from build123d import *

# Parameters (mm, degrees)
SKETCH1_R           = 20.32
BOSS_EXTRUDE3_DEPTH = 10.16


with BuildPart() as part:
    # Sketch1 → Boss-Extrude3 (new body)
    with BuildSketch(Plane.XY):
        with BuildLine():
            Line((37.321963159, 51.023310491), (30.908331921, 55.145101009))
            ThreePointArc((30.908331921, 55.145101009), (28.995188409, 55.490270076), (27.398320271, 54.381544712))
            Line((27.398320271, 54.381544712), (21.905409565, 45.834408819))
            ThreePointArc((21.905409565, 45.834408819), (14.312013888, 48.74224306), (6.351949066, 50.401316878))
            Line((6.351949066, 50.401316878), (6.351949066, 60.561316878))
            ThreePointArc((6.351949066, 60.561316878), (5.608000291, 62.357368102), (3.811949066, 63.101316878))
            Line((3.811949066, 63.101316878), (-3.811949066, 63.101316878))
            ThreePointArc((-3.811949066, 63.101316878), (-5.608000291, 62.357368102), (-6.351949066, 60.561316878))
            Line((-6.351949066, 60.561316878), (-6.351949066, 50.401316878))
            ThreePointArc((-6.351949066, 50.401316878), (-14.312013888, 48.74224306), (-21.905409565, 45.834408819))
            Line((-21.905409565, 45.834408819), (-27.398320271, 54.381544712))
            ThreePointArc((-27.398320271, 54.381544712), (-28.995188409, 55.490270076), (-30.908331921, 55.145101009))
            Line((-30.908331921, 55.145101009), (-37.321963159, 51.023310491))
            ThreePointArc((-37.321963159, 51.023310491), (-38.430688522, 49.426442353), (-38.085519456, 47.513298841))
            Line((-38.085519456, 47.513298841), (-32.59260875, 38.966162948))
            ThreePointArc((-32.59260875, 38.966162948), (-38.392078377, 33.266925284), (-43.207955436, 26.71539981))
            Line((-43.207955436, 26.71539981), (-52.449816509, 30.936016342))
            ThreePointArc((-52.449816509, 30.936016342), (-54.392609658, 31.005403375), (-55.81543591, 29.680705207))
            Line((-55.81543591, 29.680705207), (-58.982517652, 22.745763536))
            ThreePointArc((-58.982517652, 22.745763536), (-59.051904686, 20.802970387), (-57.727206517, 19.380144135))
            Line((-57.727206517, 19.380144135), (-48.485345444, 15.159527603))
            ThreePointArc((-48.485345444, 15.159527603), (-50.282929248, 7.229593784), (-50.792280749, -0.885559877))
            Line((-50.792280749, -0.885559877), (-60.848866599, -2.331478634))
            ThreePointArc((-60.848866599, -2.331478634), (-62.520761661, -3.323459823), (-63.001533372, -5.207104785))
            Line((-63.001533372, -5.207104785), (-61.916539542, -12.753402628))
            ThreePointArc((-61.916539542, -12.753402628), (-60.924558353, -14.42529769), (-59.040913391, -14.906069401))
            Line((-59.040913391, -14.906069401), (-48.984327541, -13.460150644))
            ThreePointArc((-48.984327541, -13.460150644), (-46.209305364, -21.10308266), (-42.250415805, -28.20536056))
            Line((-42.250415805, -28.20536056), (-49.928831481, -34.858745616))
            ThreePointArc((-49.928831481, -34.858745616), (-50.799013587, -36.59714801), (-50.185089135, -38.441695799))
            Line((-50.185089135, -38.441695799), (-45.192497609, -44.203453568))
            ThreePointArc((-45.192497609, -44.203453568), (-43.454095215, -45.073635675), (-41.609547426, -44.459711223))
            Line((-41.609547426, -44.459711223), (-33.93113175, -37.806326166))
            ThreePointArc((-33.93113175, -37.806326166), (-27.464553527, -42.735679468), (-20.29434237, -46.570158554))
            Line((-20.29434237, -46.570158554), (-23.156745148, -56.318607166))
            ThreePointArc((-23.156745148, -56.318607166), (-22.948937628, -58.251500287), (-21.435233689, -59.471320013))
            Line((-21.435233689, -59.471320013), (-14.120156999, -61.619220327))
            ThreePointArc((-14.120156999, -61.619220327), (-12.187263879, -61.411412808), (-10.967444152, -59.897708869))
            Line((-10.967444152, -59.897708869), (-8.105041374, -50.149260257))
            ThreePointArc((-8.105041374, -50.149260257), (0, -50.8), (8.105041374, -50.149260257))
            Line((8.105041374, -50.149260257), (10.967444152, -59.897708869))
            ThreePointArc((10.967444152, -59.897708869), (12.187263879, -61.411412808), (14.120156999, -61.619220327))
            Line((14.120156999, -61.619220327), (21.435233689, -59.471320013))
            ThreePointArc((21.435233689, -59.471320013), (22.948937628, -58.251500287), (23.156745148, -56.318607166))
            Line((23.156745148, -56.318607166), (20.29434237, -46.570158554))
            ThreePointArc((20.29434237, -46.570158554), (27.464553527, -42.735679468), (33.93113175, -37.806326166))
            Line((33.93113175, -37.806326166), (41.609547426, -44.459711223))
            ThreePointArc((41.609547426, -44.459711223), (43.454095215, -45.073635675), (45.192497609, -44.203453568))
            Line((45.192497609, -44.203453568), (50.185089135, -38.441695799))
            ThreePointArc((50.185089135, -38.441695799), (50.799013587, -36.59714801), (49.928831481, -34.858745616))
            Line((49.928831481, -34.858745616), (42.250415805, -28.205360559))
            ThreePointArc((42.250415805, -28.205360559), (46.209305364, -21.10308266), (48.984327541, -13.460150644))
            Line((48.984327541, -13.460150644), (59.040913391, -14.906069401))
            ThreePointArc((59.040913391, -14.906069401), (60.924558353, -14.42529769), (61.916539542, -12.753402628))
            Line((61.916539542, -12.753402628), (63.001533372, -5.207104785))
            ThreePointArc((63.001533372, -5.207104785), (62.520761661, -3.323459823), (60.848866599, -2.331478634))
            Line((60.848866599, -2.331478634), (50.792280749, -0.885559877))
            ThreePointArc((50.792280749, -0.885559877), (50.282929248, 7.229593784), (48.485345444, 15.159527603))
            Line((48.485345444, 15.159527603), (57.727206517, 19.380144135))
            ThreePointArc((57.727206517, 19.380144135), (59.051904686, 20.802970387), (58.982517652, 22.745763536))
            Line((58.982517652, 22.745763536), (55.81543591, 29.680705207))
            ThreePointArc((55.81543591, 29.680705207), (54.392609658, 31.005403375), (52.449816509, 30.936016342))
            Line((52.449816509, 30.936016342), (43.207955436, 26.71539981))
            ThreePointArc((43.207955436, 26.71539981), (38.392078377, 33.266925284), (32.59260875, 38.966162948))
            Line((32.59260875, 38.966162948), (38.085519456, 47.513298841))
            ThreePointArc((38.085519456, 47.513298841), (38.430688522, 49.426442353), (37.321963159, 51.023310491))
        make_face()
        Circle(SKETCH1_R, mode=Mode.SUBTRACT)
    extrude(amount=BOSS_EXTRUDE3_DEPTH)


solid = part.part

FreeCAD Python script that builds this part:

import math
import FreeCAD as App
import Part
import Sketcher

V = App.Vector
Q = App.Units.Quantity

doc = App.newDocument("Part")
params = doc.addObject("Spreadsheet::Sheet", "Params")
for row, (alias, value) in enumerate([
    ("sketch1_radius", "2 in"),
    ("sketch1_diameter", "1.6 in"),
    ("sketch1_radius2", "0.1 in"),
    ("sketch1_height", "0.4 in"),
    ("sketch1_length", "0.4 in"),
    ("pad1_length", "0.4 in"),
], start=1):
    params.set(f"A{row}", alias)
    params.set(f"B{row}", "=" + value)
    params.setAlias(f"B{row}", alias)

body = doc.addObject("PartDesign::Body", "Body")

sketch1 = doc.addObject("Sketcher::SketchObject", "Sketch")
body.addObject(sketch1)
sketch1.AttachmentSupport = (doc.XY_Plane, [""])
sketch1.MapMode = "FlatFace"
sketch1.addGeometry(Part.LineSegment(V(37.3, 51, 0), V(30.9, 55.1, 0)), False)
sketch1.addGeometry(Part.ArcOfCircle(Part.Circle(V(29.5, 53, 0), V(0, 0, 1), 2.5), math.radians(57), math.radians(147)), False)
sketch1.addGeometry(Part.LineSegment(V(27.4, 54.4, 0), V(21.9, 45.8, 0)), False)
sketch1.addGeometry(Part.ArcOfCircle(Part.Circle(V(0, 0, 0), V(0, 0, 1), 50.8), math.radians(64.46), math.radians(82.82)), False)
sketch1.addGeometry(Part.LineSegment(V(6.4, 50.4, 0), V(6.4, 60.6, 0)), False)
sketch1.addGeometry(Part.ArcOfCircle(Part.Circle(V(3.8, 60.6, 0), V(0, 0, 1), 2.5), math.radians(0), math.radians(90)), False)
sketch1.addGeometry(Part.LineSegment(V(3.8, 63.1, 0), V(-3.8, 63.1, 0)), False)
sketch1.addGeometry(Part.ArcOfCircle(Part.Circle(V(-3.8, 60.6, 0), V(0, 0, 1), 2.5), math.radians(90), math.radians(180)), False)
sketch1.addGeometry(Part.LineSegment(V(-6.4, 60.6, 0), V(-6.4, 50.4, 0)), False)
sketch1.addGeometry(Part.ArcOfCircle(Part.Circle(V(0, 0, 0), V(0, 0, 1), 50.8), math.radians(97.18), math.radians(115.54)), False)
sketch1.addGeometry(Part.LineSegment(V(-21.9, 45.8, 0), V(-27.4, 54.4, 0)), False)
sketch1.addGeometry(Part.ArcOfCircle(Part.Circle(V(-29.5, 53, 0), V(0, 0, 1), 2.5), math.radians(33), math.radians(123)), False)
sketch1.addGeometry(Part.LineSegment(V(-30.9, 55.1, 0), V(-37.3, 51, 0)), False)
sketch1.addGeometry(Part.ArcOfCircle(Part.Circle(V(-35.9, 48.9, 0), V(0, 0, 1), 2.5), math.radians(123), math.radians(213)), False)
sketch1.addGeometry(Part.LineSegment(V(-38.1, 47.5, 0), V(-32.6, 39, 0)), False)
sketch1.addGeometry(Part.ArcOfCircle(Part.Circle(V(0, 0, 0), V(0, 0, 1), 50.8), math.radians(129.91), math.radians(148.27)), False)
sketch1.addGeometry(Part.LineSegment(V(-43.2, 26.7, 0), V(-52.4, 30.9, 0)), False)
sketch1.addGeometry(Part.ArcOfCircle(Part.Circle(V(-53.5, 28.6, 0), V(0, 0, 1), 2.5), math.radians(65), math.radians(155)), False)
sketch1.addGeometry(Part.LineSegment(V(-55.8, 29.7, 0), V(-59, 22.7, 0)), False)
sketch1.addGeometry(Part.ArcOfCircle(Part.Circle(V(-56.7, 21.7, 0), V(0, 0, 1), 2.5), math.radians(155), math.radians(245)), False)
sketch1.addGeometry(Part.LineSegment(V(-57.7, 19.4, 0), V(-48.5, 15.2, 0)), False)
sketch1.addGeometry(Part.ArcOfCircle(Part.Circle(V(0, 0, 0), V(0, 0, 1), 50.8), math.radians(162.64), math.radians(181)), False)
sketch1.addGeometry(Part.LineSegment(V(-50.8, -0.9, 0), V(-60.8, -2.3, 0)), False)
sketch1.addGeometry(Part.ArcOfCircle(Part.Circle(V(-60.5, -4.8, 0), V(0, 0, 1), 2.5), math.radians(98), math.radians(188)), False)
sketch1.addGeometry(Part.LineSegment(V(-63, -5.2, 0), V(-61.9, -12.8, 0)), False)
sketch1.addGeometry(Part.ArcOfCircle(Part.Circle(V(-59.4, -12.4, 0), V(0, 0, 1), 2.5), math.radians(-172), math.radians(-82)), False)
sketch1.addGeometry(Part.LineSegment(V(-59, -14.9, 0), V(-49, -13.5, 0)), False)
sketch1.addGeometry(Part.ArcOfCircle(Part.Circle(V(0, 0, 0), V(0, 0, 1), 50.8), math.radians(-164.64), math.radians(-146.27)), False)
sketch1.addGeometry(Part.LineSegment(V(-42.3, -28.2, 0), V(-49.9, -34.9, 0)), False)
sketch1.addGeometry(Part.ArcOfCircle(Part.Circle(V(-48.3, -36.8, 0), V(0, 0, 1), 2.5), math.radians(131), math.radians(221)), False)
sketch1.addGeometry(Part.LineSegment(V(-50.2, -38.4, 0), V(-45.2, -44.2, 0)), False)
sketch1.addGeometry(Part.ArcOfCircle(Part.Circle(V(-43.3, -42.5, 0), V(0, 0, 1), 2.5), math.radians(-139), math.radians(-49)), False)
sketch1.addGeometry(Part.LineSegment(V(-41.6, -44.5, 0), V(-33.9, -37.8, 0)), False)
sketch1.addGeometry(Part.ArcOfCircle(Part.Circle(V(0, 0, 0), V(0, 0, 1), 50.8), math.radians(-131.91), math.radians(-113.55)), False)
sketch1.addGeometry(Part.LineSegment(V(-20.3, -46.6, 0), V(-23.2, -56.3, 0)), False)
sketch1.addGeometry(Part.ArcOfCircle(Part.Circle(V(-20.7, -57, 0), V(0, 0, 1), 2.5), math.radians(164), math.radians(254)), False)
sketch1.addGeometry(Part.LineSegment(V(-21.4, -59.5, 0), V(-14.1, -61.6, 0)), False)
sketch1.addGeometry(Part.ArcOfCircle(Part.Circle(V(-13.4, -59.2, 0), V(0, 0, 1), 2.5), math.radians(-106), math.radians(-16)), False)
sketch1.addGeometry(Part.LineSegment(V(-11, -59.9, 0), V(-8.1, -50.1, 0)), False)
sketch1.addGeometry(Part.ArcOfCircle(Part.Circle(V(0, 0, 0), V(0, 0, 1), 50.8), math.radians(-99.18), math.radians(-80.82)), False)
sketch1.addGeometry(Part.LineSegment(V(8.1, -50.1, 0), V(11, -59.9, 0)), False)
sketch1.addGeometry(Part.ArcOfCircle(Part.Circle(V(13.4, -59.2, 0), V(0, 0, 1), 2.5), math.radians(-164), math.radians(-74)), False)
sketch1.addGeometry(Part.LineSegment(V(14.1, -61.6, 0), V(21.4, -59.5, 0)), False)
sketch1.addGeometry(Part.ArcOfCircle(Part.Circle(V(20.7, -57, 0), V(0, 0, 1), 2.5), math.radians(-74), math.radians(16)), False)
sketch1.addGeometry(Part.LineSegment(V(23.2, -56.3, 0), V(20.3, -46.6, 0)), False)
sketch1.addGeometry(Part.ArcOfCircle(Part.Circle(V(0, 0, 0), V(0, 0, 1), 50.8), math.radians(-66.45), math.radians(-48.09)), False)
sketch1.addGeometry(Part.LineSegment(V(33.9, -37.8, 0), V(41.6, -44.5, 0)), False)
sketch1.addGeometry(Part.ArcOfCircle(Part.Circle(V(43.3, -42.5, 0), V(0, 0, 1), 2.5), math.radians(-131), math.radians(-41)), False)
sketch1.addGeometry(Part.LineSegment(V(45.2, -44.2, 0), V(50.2, -38.4, 0)), False)
sketch1.addGeometry(Part.ArcOfCircle(Part.Circle(V(48.3, -36.8, 0), V(0, 0, 1), 2.5), math.radians(-41), math.radians(49)), False)
sketch1.addGeometry(Part.LineSegment(V(49.9, -34.9, 0), V(42.3, -28.2, 0)), False)
sketch1.addGeometry(Part.ArcOfCircle(Part.Circle(V(0, 0, 0), V(0, 0, 1), 50.8), math.radians(-33.73), math.radians(-15.36)), False)
sketch1.addGeometry(Part.LineSegment(V(49, -13.5, 0), V(59, -14.9, 0)), False)
sketch1.addGeometry(Part.ArcOfCircle(Part.Circle(V(59.4, -12.4, 0), V(0, 0, 1), 2.5), math.radians(-98), math.radians(-8)), False)
sketch1.addGeometry(Part.LineSegment(V(61.9, -12.8, 0), V(63, -5.2, 0)), False)
sketch1.addGeometry(Part.ArcOfCircle(Part.Circle(V(60.5, -4.8, 0), V(0, 0, 1), 2.5), math.radians(-8), math.radians(82)), False)
sketch1.addGeometry(Part.LineSegment(V(60.8, -2.3, 0), V(50.8, -0.9, 0)), False)
sketch1.addGeometry(Part.ArcOfCircle(Part.Circle(V(0, 0, 0), V(0, 0, 1), 50.8), math.radians(-1), math.radians(17.36)), False)
sketch1.addGeometry(Part.LineSegment(V(48.5, 15.2, 0), V(57.7, 19.4, 0)), False)
sketch1.addGeometry(Part.ArcOfCircle(Part.Circle(V(56.7, 21.7, 0), V(0, 0, 1), 2.5), math.radians(-65), math.radians(25)), False)
sketch1.addGeometry(Part.LineSegment(V(59, 22.7, 0), V(55.8, 29.7, 0)), False)
sketch1.addGeometry(Part.ArcOfCircle(Part.Circle(V(53.5, 28.6, 0), V(0, 0, 1), 2.5), math.radians(25), math.radians(115)), False)
sketch1.addGeometry(Part.LineSegment(V(52.4, 30.9, 0), V(43.2, 26.7, 0)), False)
sketch1.addGeometry(Part.ArcOfCircle(Part.Circle(V(0, 0, 0), V(0, 0, 1), 50.8), math.radians(31.73), math.radians(50.09)), False)
sketch1.addGeometry(Part.LineSegment(V(32.6, 39, 0), V(38.1, 47.5, 0)), False)
sketch1.addGeometry(Part.ArcOfCircle(Part.Circle(V(35.9, 48.9, 0), V(0, 0, 1), 2.5), math.radians(-33), math.radians(57)), False)
sketch1.addGeometry(Part.Circle(V(0, 0, 0), V(0, 0, 1), 20.3), False)
sketch1.addConstraint(Sketcher.Constraint("Tangent", 0, 2, 1, 1))
sketch1.addConstraint(Sketcher.Constraint("Tangent", 1, 2, 2, 1))
sketch1.addConstraint(Sketcher.Constraint("Coincident", 2, 2, 3, 1))
sketch1.addConstraint(Sketcher.Constraint("Coincident", 3, 2, 4, 1))
sketch1.addConstraint(Sketcher.Constraint("Tangent", 4, 2, 5, 1))
sketch1.addConstraint(Sketcher.Constraint("Tangent", 5, 2, 6, 1))
sketch1.addConstraint(Sketcher.Constraint("Tangent", 6, 2, 7, 1))
sketch1.addConstraint(Sketcher.Constraint("Tangent", 7, 2, 8, 1))
sketch1.addConstraint(Sketcher.Constraint("Coincident", 8, 2, 9, 1))
sketch1.addConstraint(Sketcher.Constraint("Coincident", 9, 2, 10, 1))
sketch1.addConstraint(Sketcher.Constraint("Tangent", 10, 2, 11, 1))
sketch1.addConstraint(Sketcher.Constraint("Tangent", 11, 2, 12, 1))
sketch1.addConstraint(Sketcher.Constraint("Tangent", 12, 2, 13, 1))
sketch1.addConstraint(Sketcher.Constraint("Tangent", 13, 2, 14, 1))
sketch1.addConstraint(Sketcher.Constraint("Coincident", 14, 2, 15, 1))
sketch1.addConstraint(Sketcher.Constraint("Coincident", 15, 2, 16, 1))
sketch1.addConstraint(Sketcher.Constraint("Tangent", 16, 2, 17, 1))
sketch1.addConstraint(Sketcher.Constraint("Tangent", 17, 2, 18, 1))
sketch1.addConstraint(Sketcher.Constraint("Tangent", 18, 2, 19, 1))
sketch1.addConstraint(Sketcher.Constraint("Tangent", 19, 2, 20, 1))
sketch1.addConstraint(Sketcher.Constraint("Coincident", 20, 2, 21, 1))
sketch1.addConstraint(Sketcher.Constraint("Coincident", 21, 2, 22, 1))
sketch1.addConstraint(Sketcher.Constraint("Tangent", 22, 2, 23, 1))
sketch1.addConstraint(Sketcher.Constraint("Tangent", 23, 2, 24, 1))
sketch1.addConstraint(Sketcher.Constraint("Tangent", 24, 2, 25, 1))
sketch1.addConstraint(Sketcher.Constraint("Tangent", 25, 2, 26, 1))
sketch1.addConstraint(Sketcher.Constraint("Coincident", 26, 2, 27, 1))
sketch1.addConstraint(Sketcher.Constraint("Coincident", 27, 2, 28, 1))
sketch1.addConstraint(Sketcher.Constraint("Tangent", 28, 2, 29, 1))
sketch1.addConstraint(Sketcher.Constraint("Tangent", 29, 2, 30, 1))
sketch1.addConstraint(Sketcher.Constraint("Tangent", 30, 2, 31, 1))
sketch1.addConstraint(Sketcher.Constraint("Tangent", 31, 2, 32, 1))
sketch1.addConstraint(Sketcher.Constraint("Coincident", 32, 2, 33, 1))
sketch1.addConstraint(Sketcher.Constraint("Coincident", 33, 2, 34, 1))
sketch1.addConstraint(Sketcher.Constraint("Tangent", 34, 2, 35, 1))
sketch1.addConstraint(Sketcher.Constraint("Tangent", 35, 2, 36, 1))
sketch1.addConstraint(Sketcher.Constraint("Tangent", 36, 2, 37, 1))
sketch1.addConstraint(Sketcher.Constraint("Tangent", 37, 2, 38, 1))
sketch1.addConstraint(Sketcher.Constraint("Coincident", 38, 2, 39, 1))
sketch1.addConstraint(Sketcher.Constraint("Coincident", 39, 2, 40, 1))
sketch1.addConstraint(Sketcher.Constraint("Tangent", 40, 2, 41, 1))
sketch1.addConstraint(Sketcher.Constraint("Tangent", 41, 2, 42, 1))
sketch1.addConstraint(Sketcher.Constraint("Tangent", 42, 2, 43, 1))
sketch1.addConstraint(Sketcher.Constraint("Tangent", 43, 2, 44, 1))
sketch1.addConstraint(Sketcher.Constraint("Coincident", 44, 2, 45, 1))
sketch1.addConstraint(Sketcher.Constraint("Coincident", 45, 2, 46, 1))
sketch1.addConstraint(Sketcher.Constraint("Tangent", 46, 2, 47, 1))
sketch1.addConstraint(Sketcher.Constraint("Tangent", 47, 2, 48, 1))
sketch1.addConstraint(Sketcher.Constraint("Tangent", 48, 2, 49, 1))
sketch1.addConstraint(Sketcher.Constraint("Tangent", 49, 2, 50, 1))
sketch1.addConstraint(Sketcher.Constraint("Coincident", 50, 2, 51, 1))
sketch1.addConstraint(Sketcher.Constraint("Coincident", 51, 2, 52, 1))
sketch1.addConstraint(Sketcher.Constraint("Tangent", 52, 2, 53, 1))
sketch1.addConstraint(Sketcher.Constraint("Tangent", 53, 2, 54, 1))
sketch1.addConstraint(Sketcher.Constraint("Tangent", 54, 2, 55, 1))
sketch1.addConstraint(Sketcher.Constraint("Tangent", 55, 2, 56, 1))
sketch1.addConstraint(Sketcher.Constraint("Coincident", 56, 2, 57, 1))
sketch1.addConstraint(Sketcher.Constraint("Coincident", 57, 2, 58, 1))
sketch1.addConstraint(Sketcher.Constraint("Tangent", 58, 2, 59, 1))
sketch1.addConstraint(Sketcher.Constraint("Tangent", 59, 2, 60, 1))
sketch1.addConstraint(Sketcher.Constraint("Tangent", 60, 2, 61, 1))
sketch1.addConstraint(Sketcher.Constraint("Tangent", 61, 2, 62, 1))
sketch1.addConstraint(Sketcher.Constraint("Coincident", 62, 2, 63, 1))
sketch1.addConstraint(Sketcher.Constraint("Coincident", 63, 2, 64, 1))
sketch1.addConstraint(Sketcher.Constraint("Tangent", 64, 2, 65, 1))
sketch1.addConstraint(Sketcher.Constraint("Tangent", 65, 2, 0, 1))
sketch1.addConstraint(Sketcher.Constraint("Vertical", 4))
sketch1.addConstraint(Sketcher.Constraint("Horizontal", 6))
sketch1.addConstraint(Sketcher.Constraint("Vertical", 8))
sketch1.addConstraint(Sketcher.Constraint("Coincident", 3, 3, -1, 1))
sketch1.addConstraint(Sketcher.Constraint("Coincident", 9, 3, -1, 1))
sketch1.addConstraint(Sketcher.Constraint("Coincident", 15, 3, -1, 1))
sketch1.addConstraint(Sketcher.Constraint("Coincident", 21, 3, -1, 1))
sketch1.addConstraint(Sketcher.Constraint("Coincident", 27, 3, -1, 1))
sketch1.addConstraint(Sketcher.Constraint("Coincident", 33, 3, -1, 1))
sketch1.addConstraint(Sketcher.Constraint("Coincident", 39, 3, -1, 1))
sketch1.addConstraint(Sketcher.Constraint("Coincident", 45, 3, -1, 1))
sketch1.addConstraint(Sketcher.Constraint("Coincident", 51, 3, -1, 1))
sketch1.addConstraint(Sketcher.Constraint("Coincident", 57, 3, -1, 1))
sketch1.addConstraint(Sketcher.Constraint("Coincident", 63, 3, -1, 1))
sketch1.addConstraint(Sketcher.Constraint("Coincident", 66, 3, -1, 1))
sketch1.addConstraint(Sketcher.Constraint("Equal", 1, 5))
sketch1.addConstraint(Sketcher.Constraint("Equal", 5, 7))
sketch1.addConstraint(Sketcher.Constraint("Equal", 3, 9))
sketch1.addConstraint(Sketcher.Constraint("Equal", 7, 11))
sketch1.addConstraint(Sketcher.Constraint("Equal", 11, 13))
sketch1.addConstraint(Sketcher.Constraint("Equal", 9, 15))
sketch1.addConstraint(Sketcher.Constraint("Equal", 13, 17))
sketch1.addConstraint(Sketcher.Constraint("Equal", 17, 19))
sketch1.addConstraint(Sketcher.Constraint("Equal", 15, 21))
sketch1.addConstraint(Sketcher.Constraint("Equal", 19, 23))
sketch1.addConstraint(Sketcher.Constraint("Equal", 23, 25))
sketch1.addConstraint(Sketcher.Constraint("Equal", 21, 27))
sketch1.addConstraint(Sketcher.Constraint("Equal", 25, 29))
sketch1.addConstraint(Sketcher.Constraint("Equal", 29, 31))
sketch1.addConstraint(Sketcher.Constraint("Equal", 27, 33))
sketch1.addConstraint(Sketcher.Constraint("Equal", 31, 35))
sketch1.addConstraint(Sketcher.Constraint("Equal", 35, 37))
sketch1.addConstraint(Sketcher.Constraint("Equal", 33, 39))
sketch1.addConstraint(Sketcher.Constraint("Equal", 37, 41))
sketch1.addConstraint(Sketcher.Constraint("Equal", 41, 43))
sketch1.addConstraint(Sketcher.Constraint("Equal", 39, 45))
sketch1.addConstraint(Sketcher.Constraint("Equal", 43, 47))
sketch1.addConstraint(Sketcher.Constraint("Equal", 47, 49))
sketch1.addConstraint(Sketcher.Constraint("Equal", 45, 51))
sketch1.addConstraint(Sketcher.Constraint("Equal", 49, 53))
sketch1.addConstraint(Sketcher.Constraint("Equal", 53, 55))
sketch1.addConstraint(Sketcher.Constraint("Equal", 51, 57))
sketch1.addConstraint(Sketcher.Constraint("Equal", 55, 59))
sketch1.addConstraint(Sketcher.Constraint("Equal", 59, 61))
sketch1.addConstraint(Sketcher.Constraint("Equal", 57, 63))
sketch1.addConstraint(Sketcher.Constraint("Equal", 61, 65))
sketch1.addConstraint(Sketcher.Constraint("Symmetric", 1, 3, 11, 3, -2))
sketch1.addConstraint(Sketcher.Constraint("Symmetric", 37, 3, 41, 3, -2))
sketch1.addConstraint(Sketcher.Constraint("Symmetric", 35, 3, 43, 3, -2))
sketch1.addConstraint(Sketcher.Constraint("Symmetric", 31, 3, 47, 3, -2))
sketch1.addConstraint(Sketcher.Constraint("Symmetric", 29, 3, 49, 3, -2))
sketch1.addConstraint(Sketcher.Constraint("Symmetric", 25, 3, 53, 3, -2))
sketch1.addConstraint(Sketcher.Constraint("Symmetric", 23, 3, 55, 3, -2))
sketch1.addConstraint(Sketcher.Constraint("Symmetric", 19, 3, 59, 3, -2))
sketch1.addConstraint(Sketcher.Constraint("Symmetric", 17, 3, 61, 3, -2))
sketch1.addConstraint(Sketcher.Constraint("Symmetric", 13, 3, 65, 3, -2))
sketch1.addConstraint(Sketcher.Constraint("Perpendicular", 0, 2))
sketch1.addConstraint(Sketcher.Constraint("Perpendicular", 10, 12))
sketch1.addConstraint(Sketcher.Constraint("Perpendicular", 12, 14))
sketch1.addConstraint(Sketcher.Constraint("Perpendicular", 16, 18))
sketch1.addConstraint(Sketcher.Constraint("Perpendicular", 18, 20))
sketch1.addConstraint(Sketcher.Constraint("Perpendicular", 22, 24))
sketch1.addConstraint(Sketcher.Constraint("Perpendicular", 24, 26))
sketch1.addConstraint(Sketcher.Constraint("Perpendicular", 28, 30))
sketch1.addConstraint(Sketcher.Constraint("Perpendicular", 30, 32))
sketch1.addConstraint(Sketcher.Constraint("Perpendicular", 34, 36))
sketch1.addConstraint(Sketcher.Constraint("Perpendicular", 36, 38))
sketch1.addConstraint(Sketcher.Constraint("Perpendicular", 40, 42))
sketch1.addConstraint(Sketcher.Constraint("Perpendicular", 42, 44))
sketch1.addConstraint(Sketcher.Constraint("Perpendicular", 46, 48))
sketch1.addConstraint(Sketcher.Constraint("Perpendicular", 48, 50))
sketch1.addConstraint(Sketcher.Constraint("Perpendicular", 52, 54))
sketch1.addConstraint(Sketcher.Constraint("Perpendicular", 54, 56))
sketch1.addConstraint(Sketcher.Constraint("Perpendicular", 58, 60))
sketch1.addConstraint(Sketcher.Constraint("Perpendicular", 60, 62))
sketch1.addConstraint(Sketcher.Constraint("Parallel", 2, 64))
sketch1.addConstraint(Sketcher.Constraint("Horizontal", 3, 2, 8, 2))
sketch1.addConstraint(Sketcher.Constraint("Equal", 10, 14))
sketch1.addConstraint(Sketcher.Constraint("Equal", 14, 16))
sketch1.addConstraint(Sketcher.Constraint("Equal", 12, 18))
sketch1.addConstraint(Sketcher.Constraint("Equal", 16, 20))
sketch1.addConstraint(Sketcher.Constraint("Equal", 20, 22))
sketch1.addConstraint(Sketcher.Constraint("Equal", 18, 24))
sketch1.addConstraint(Sketcher.Constraint("Equal", 22, 26))
sketch1.addConstraint(Sketcher.Constraint("Equal", 26, 28))
sketch1.addConstraint(Sketcher.Constraint("Equal", 24, 30))
sketch1.addConstraint(Sketcher.Constraint("Equal", 28, 32))
sketch1.addConstraint(Sketcher.Constraint("Equal", 32, 34))
sketch1.addConstraint(Sketcher.Constraint("Equal", 30, 36))
sketch1.addConstraint(Sketcher.Constraint("Equal", 34, 38))
sketch1.addConstraint(Sketcher.Constraint("Radius", 3, Q("2 in")))
sketch1.addConstraint(Sketcher.Constraint("Diameter", 66, Q("1.6 in")))
sketch1.addConstraint(Sketcher.Constraint("Radius", 1, Q("0.1 in")))
sketch1.addConstraint(Sketcher.Constraint("DistanceY", 4, 1, 4, 2, Q("0.4 in")))
sketch1.addConstraint(Sketcher.Constraint("Distance", 2, Q("0.4 in")))
sketch1.addConstraint(Sketcher.Constraint("DistanceX", 6, 2, 6, 1, 7.623898))
sketch1.addConstraint(Sketcher.Constraint("Distance", 0, 7.623898))
sketch1.addConstraint(Sketcher.Constraint("DistanceY", -1, 1, 0, 2, 55.145101))
sketch1.addConstraint(Sketcher.Constraint("DistanceY", -1, 1, 15, 2, 26.7154))
sketch1.addConstraint(Sketcher.Constraint("DistanceY", 29, 3, -1, 1, 36.77835))
sketch1.addConstraint(Sketcher.Constraint("DistanceY", 37, 3, -1, 1, 59.182108))
sketch1.addConstraint(Sketcher.Constraint("DistanceX", 21, 2, -1, 1, 50.792281))
sketch1.setExpression("Constraints[156]", "Params.sketch1_radius")
sketch1.setExpression("Constraints[157]", "Params.sketch1_diameter")
sketch1.setExpression("Constraints[158]", "Params.sketch1_radius2")
sketch1.setExpression("Constraints[159]", "Params.sketch1_height")
sketch1.setExpression("Constraints[160]", "Params.sketch1_length")
pad1 = doc.addObject("PartDesign::Pad", "Pad")
body.addObject(pad1)
pad1.Profile = sketch1
pad1.setExpression("Length", "Params.pad1_length")

doc.recompute()
